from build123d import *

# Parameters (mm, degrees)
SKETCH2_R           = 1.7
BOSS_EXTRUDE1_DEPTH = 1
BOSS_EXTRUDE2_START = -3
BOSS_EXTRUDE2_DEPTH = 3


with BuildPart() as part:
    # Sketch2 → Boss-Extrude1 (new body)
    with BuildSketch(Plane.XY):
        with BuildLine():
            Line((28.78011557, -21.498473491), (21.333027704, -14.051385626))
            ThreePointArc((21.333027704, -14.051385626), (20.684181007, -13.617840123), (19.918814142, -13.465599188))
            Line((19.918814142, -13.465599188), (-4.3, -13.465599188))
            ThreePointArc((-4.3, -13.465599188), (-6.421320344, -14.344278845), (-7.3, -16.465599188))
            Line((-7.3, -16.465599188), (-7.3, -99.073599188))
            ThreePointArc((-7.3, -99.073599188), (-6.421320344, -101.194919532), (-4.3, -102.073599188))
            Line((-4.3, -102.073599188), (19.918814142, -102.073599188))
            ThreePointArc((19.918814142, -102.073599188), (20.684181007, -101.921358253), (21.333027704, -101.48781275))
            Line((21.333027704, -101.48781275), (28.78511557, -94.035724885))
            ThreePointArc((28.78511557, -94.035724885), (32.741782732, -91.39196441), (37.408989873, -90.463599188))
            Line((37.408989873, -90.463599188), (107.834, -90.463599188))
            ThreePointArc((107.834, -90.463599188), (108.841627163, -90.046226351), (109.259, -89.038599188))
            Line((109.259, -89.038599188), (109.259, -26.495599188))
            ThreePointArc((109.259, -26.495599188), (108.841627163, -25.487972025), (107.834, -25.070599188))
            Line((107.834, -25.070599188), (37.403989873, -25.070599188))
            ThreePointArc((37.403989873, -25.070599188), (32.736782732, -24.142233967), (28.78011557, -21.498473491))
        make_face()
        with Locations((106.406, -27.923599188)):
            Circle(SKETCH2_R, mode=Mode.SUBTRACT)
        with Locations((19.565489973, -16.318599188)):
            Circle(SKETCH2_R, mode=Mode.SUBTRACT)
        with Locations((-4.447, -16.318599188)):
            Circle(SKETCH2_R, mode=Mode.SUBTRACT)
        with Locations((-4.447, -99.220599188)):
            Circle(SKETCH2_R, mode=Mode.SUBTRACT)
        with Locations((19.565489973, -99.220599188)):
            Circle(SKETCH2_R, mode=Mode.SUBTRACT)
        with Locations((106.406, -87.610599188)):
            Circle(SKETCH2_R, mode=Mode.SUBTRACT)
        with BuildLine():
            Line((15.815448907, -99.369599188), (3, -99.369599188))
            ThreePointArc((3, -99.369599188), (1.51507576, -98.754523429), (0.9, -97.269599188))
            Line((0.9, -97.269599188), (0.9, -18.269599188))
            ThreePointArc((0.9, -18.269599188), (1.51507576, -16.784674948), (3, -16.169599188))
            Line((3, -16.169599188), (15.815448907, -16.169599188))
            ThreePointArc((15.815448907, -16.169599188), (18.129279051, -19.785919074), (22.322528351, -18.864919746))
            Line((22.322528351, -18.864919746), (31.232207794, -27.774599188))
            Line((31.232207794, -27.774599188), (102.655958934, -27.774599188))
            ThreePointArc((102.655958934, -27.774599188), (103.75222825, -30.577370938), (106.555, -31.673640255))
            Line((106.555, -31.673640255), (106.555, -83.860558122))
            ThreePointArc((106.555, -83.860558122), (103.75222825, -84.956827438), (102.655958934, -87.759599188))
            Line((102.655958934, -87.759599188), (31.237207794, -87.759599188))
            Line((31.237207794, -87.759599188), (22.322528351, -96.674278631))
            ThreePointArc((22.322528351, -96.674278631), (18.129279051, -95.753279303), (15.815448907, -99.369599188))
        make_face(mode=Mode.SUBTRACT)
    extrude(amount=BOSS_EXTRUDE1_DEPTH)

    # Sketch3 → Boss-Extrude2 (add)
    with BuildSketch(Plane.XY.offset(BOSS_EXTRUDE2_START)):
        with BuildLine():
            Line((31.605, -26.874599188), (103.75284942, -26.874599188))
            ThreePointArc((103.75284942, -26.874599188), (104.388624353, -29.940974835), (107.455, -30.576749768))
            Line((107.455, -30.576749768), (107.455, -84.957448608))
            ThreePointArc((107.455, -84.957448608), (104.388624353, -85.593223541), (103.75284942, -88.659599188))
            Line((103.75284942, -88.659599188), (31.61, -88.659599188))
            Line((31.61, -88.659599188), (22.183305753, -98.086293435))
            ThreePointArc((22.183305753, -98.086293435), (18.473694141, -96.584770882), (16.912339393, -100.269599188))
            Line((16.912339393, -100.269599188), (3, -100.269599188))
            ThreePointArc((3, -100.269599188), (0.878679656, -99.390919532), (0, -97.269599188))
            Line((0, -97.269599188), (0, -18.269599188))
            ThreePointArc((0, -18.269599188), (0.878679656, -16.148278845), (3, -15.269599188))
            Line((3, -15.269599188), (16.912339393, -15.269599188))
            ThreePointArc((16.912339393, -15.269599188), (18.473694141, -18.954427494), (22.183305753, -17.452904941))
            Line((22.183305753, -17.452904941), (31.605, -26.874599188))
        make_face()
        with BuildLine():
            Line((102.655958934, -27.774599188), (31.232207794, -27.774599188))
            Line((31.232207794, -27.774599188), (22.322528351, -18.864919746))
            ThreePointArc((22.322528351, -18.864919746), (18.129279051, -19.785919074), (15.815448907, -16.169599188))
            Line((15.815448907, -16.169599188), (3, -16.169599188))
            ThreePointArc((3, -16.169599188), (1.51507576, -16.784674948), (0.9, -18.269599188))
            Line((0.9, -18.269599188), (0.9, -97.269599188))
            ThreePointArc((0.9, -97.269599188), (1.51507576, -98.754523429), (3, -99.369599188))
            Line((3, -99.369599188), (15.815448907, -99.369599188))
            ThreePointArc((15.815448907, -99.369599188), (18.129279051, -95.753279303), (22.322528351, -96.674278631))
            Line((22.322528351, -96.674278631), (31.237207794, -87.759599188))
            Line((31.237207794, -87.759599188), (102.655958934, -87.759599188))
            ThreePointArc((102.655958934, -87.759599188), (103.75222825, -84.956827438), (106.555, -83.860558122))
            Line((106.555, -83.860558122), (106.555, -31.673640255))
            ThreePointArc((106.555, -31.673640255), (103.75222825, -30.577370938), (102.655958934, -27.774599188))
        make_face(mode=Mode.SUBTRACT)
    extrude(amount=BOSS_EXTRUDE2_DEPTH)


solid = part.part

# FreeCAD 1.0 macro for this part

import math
import FreeCAD as App
import Part
import Sketcher
from FreeCAD import Vector
Q = App.Units.Quantity

doc = App.newDocument("Part")
params = doc.addObject("Spreadsheet::Sheet", "Params")
for row, (alias, value) in enumerate([
    ("sketch1_radius", "2 mm"),
    ("sketch1_radius2", "3 mm"),
    ("sketch1_diameter", "3.4 mm"),
    ("sketch1_radius3", "2.1 mm"),
    ("sketch1_height", "79 mm"),
    ("pad1_length", "1 mm"),
    ("sketch2_radius", "3 mm"),
    ("sketch2_radius2", "2.1 mm"),
    ("sketch2_height", "79 mm"),
    ("pad2_length", "3 mm"),
], start=1):
    params.set(f"A{row}", alias)
    params.set(f"B{row}", "=" + value)
    params.setAlias(f"B{row}", alias)

body = doc.addObject("PartDesign::Body", "Body")

# Sketch on XY plane
sketch1 = body.newObject("Sketcher::SketchObject", "Sketch")
sketch1.AttachmentSupport = (doc.getObject("XY_Plane"), [""])
sketch1.MapMode = "FlatFace"
sketch1.addGeometry([
    Part.LineSegment(Vector(28.8, -21.5, 0), Vector(21.3, -14.1, 0)),  # 0
    Part.ArcOfCircle(Part.Circle(Vector(19.9, -15.5, 0), Vector(0, 0, 1), 2), math.radians(45), math.radians(90)),  # 1
    Part.LineSegment(Vector(19.9, -13.5, 0), Vector(-4.3, -13.5, 0)),  # 2
    Part.ArcOfCircle(Part.Circle(Vector(-4.3, -16.5, 0), Vector(0, 0, 1), 3), math.radians(90), math.radians(180)),  # 3
    Part.LineSegment(Vector(-7.3, -16.5, 0), Vector(-7.3, -99.1, 0)),  # 4
    Part.ArcOfCircle(Part.Circle(Vector(-4.3, -99.1, 0), Vector(0, 0, 1), 3), math.radians(180), math.radians(270)),  # 5
    Part.LineSegment(Vector(-4.3, -102.1, 0), Vector(19.9, -102.1, 0)),  # 6
    Part.ArcOfCircle(Part.Circle(Vector(19.9, -100.1, 0), Vector(0, 0, 1), 2), math.radians(-90), math.radians(-45)),  # 7
    Part.LineSegment(Vector(21.3, -101.5, 0), Vector(28.8, -94, 0)),  # 8
    Part.ArcOfCircle(Part.Circle(Vector(37.4, -102.7, 0), Vector(0, 0, 1), 12.2), math.radians(90), math.radians(135)),  # 9
    Part.LineSegment(Vector(37.4, -90.5, 0), Vector(107.8, -90.5, 0)),  # 10
    Part.ArcOfCircle(Part.Circle(Vector(107.8, -89, 0), Vector(0, 0, 1), 1.4), math.radians(-90), math.radians(0)),  # 11
    Part.LineSegment(Vector(109.3, -89, 0), Vector(109.3, -26.5, 0)),  # 12
    Part.ArcOfCircle(Part.Circle(Vector(107.8, -26.5, 0), Vector(0, 0, 1), 1.4), math.radians(0), math.radians(90)),  # 13
    Part.LineSegment(Vector(107.8, -25.1, 0), Vector(37.4, -25.1, 0)),  # 14
    Part.ArcOfCircle(Part.Circle(Vector(37.4, -12.9, 0), Vector(0, 0, 1), 12.2), math.radians(-135), math.radians(-90)),  # 15
    Part.Circle(Vector(-4.4, -99.2, 0), Vector(0, 0, 1), 1.7),  # 16
    Part.Circle(Vector(19.6, -99.2, 0), Vector(0, 0, 1), 1.7),  # 17
    Part.Circle(Vector(106.4, -87.6, 0), Vector(0, 0, 1), 1.7),  # 18
    Part.Circle(Vector(-4.4, -16.3, 0), Vector(0, 0, 1), 1.7),  # 19
    Part.Circle(Vector(19.6, -16.3, 0), Vector(0, 0, 1), 1.7),  # 20
    Part.ArcOfCircle(Part.Circle(Vector(19.6, -99.2, 0), Vector(0, 0, 1), 3.8), math.radians(43), math.radians(182)),  # 21
    Part.LineSegment(Vector(15.8, -99.4, 0), Vector(3, -99.4, 0)),  # 22
    Part.ArcOfCircle(Part.Circle(Vector(3, -97.3, 0), Vector(0, 0, 1), 2.1), math.radians(180), math.radians(270)),  # 23
    Part.LineSegment(Vector(0.9, -97.3, 0), Vector(0.9, -18.3, 0)),  # 24
    Part.ArcOfCircle(Part.Circle(Vector(3, -18.3, 0), Vector(0, 0, 1), 2.1), math.radians(90), math.radians(180)),  # 25
    Part.LineSegment(Vector(3, -16.2, 0), Vector(15.8, -16.2, 0)),  # 26
    Part.ArcOfCircle(Part.Circle(Vector(19.6, -16.3, 0), Vector(0, 0, 1), 3.8), math.radians(178), math.radians(317)),  # 27
    Part.LineSegment(Vector(22.3, -18.9, 0), Vector(31.2, -27.8, 0)),  # 28
    Part.LineSegment(Vector(31.2, -27.8, 0), Vector(102.7, -27.8, 0)),  # 29
    Part.ArcOfCircle(Part.Circle(Vector(106.4, -27.9, 0), Vector(0, 0, 1), 3.8), math.radians(178), math.radians(272)),  # 30
    Part.LineSegment(Vector(106.6, -31.7, 0), Vector(106.6, -83.9, 0)),  # 31
    Part.ArcOfCircle(Part.Circle(Vector(106.4, -87.6, 0), Vector(0, 0, 1), 3.8), math.radians(88), math.radians(182)),  # 32
    Part.LineSegment(Vector(102.7, -87.8, 0), Vector(31.2, -87.8, 0)),  # 33
    Part.LineSegment(Vector(31.2, -87.8, 0), Vector(22.3, -96.7, 0)),  # 34
    Part.Circle(Vector(106.4, -27.9, 0), Vector(0, 0, 1), 1.7),  # 35
], False)
sketch1.addConstraint([
    Sketcher.Constraint("Tangent", 0, 2, 1, 1),
    Sketcher.Constraint("Tangent", 1, 2, 2, 1),
    Sketcher.Constraint("Tangent", 2, 2, 3, 1),
    Sketcher.Constraint("Tangent", 3, 2, 4, 1),
    Sketcher.Constraint("Tangent", 4, 2, 5, 1),
    Sketcher.Constraint("Tangent", 5, 2, 6, 1),
    Sketcher.Constraint("Tangent", 6, 2, 7, 1),
    Sketcher.Constraint("Tangent", 7, 2, 8, 1),
    Sketcher.Constraint("Tangent", 8, 2, 9, 2),
    Sketcher.Constraint("Tangent", 9, 1, 10, 1),
    Sketcher.Constraint("Tangent", 10, 2, 11, 1),
    Sketcher.Constraint("Tangent", 11, 2, 12, 1),
    Sketcher.Constraint("Tangent", 12, 2, 13, 1),
    Sketcher.Constraint("Tangent", 13, 2, 14, 1),
    Sketcher.Constraint("Tangent", 14, 2, 15, 2),
    Sketcher.Constraint("Tangent", 15, 1, 0, 1),
    Sketcher.Constraint("Coincident", 21, 2, 22, 1),
    Sketcher.Constraint("Tangent", 22, 2, 23, 2),
    Sketcher.Constraint("Tangent", 23, 1, 24, 1),
    Sketcher.Constraint("Tangent", 24, 2, 25, 2),
    Sketcher.Constraint("Tangent", 25, 1, 26, 1),
    Sketcher.Constraint("Coincident", 26, 2, 27, 1),
    Sketcher.Constraint("Coincident", 27, 2, 28, 1),
    Sketcher.Constraint("Coincident", 28, 2, 29, 1),
    Sketcher.Constraint("Coincident", 29, 2, 30, 1),
    Sketcher.Constraint("Coincident", 30, 2, 31, 1),
    Sketcher.Constraint("Coincident", 31, 2, 32, 1),
    Sketcher.Constraint("Coincident", 32, 2, 33, 1),
    Sketcher.Constraint("Coincident", 33, 2, 34, 1),
    Sketcher.Constraint("Coincident", 34, 2, 21, 1),
    Sketcher.Constraint("Horizontal", 2),
    Sketcher.Constraint("Vertical", 4),
    Sketcher.Constraint("Horizontal", 6),
    Sketcher.Constraint("Horizontal", 10),
    Sketcher.Constraint("Vertical", 12),
    Sketcher.Constraint("Horizontal", 14),
    Sketcher.Constraint("Horizontal", 22),
    Sketcher.Constraint("Vertical", 24),
    Sketcher.Constraint("Horizontal", 26),
    Sketcher.Constraint("Horizontal", 29),
    Sketcher.Constraint("Vertical", 31),
    Sketcher.Constraint("Horizontal", 33),
    Sketcher.Constraint("Coincident", 21, 3, 17, 3),
    Sketcher.Constraint("Coincident", 27, 3, 20, 3),
    Sketcher.Constraint("Coincident", 32, 3, 18, 3),
    Sketcher.Constraint("Coincident", 35, 3, 30, 3),
    Sketcher.Constraint("Equal", 3, 5),
    Sketcher.Constraint("Equal", 1, 7),
    Sketcher.Constraint("Equal", 11, 13),
    Sketcher.Constraint("Equal", 9, 15),
    Sketcher.Constraint("Equal", 16, 17),
    Sketcher.Constraint("Equal", 17, 18),
    Sketcher.Constraint("Equal", 18, 19),
    Sketcher.Constraint("Equal", 19, 20),
    Sketcher.Constraint("Equal", 23, 25),
    Sketcher.Constraint("Equal", 21, 27),
    Sketcher.Constraint("Equal", 27, 30),
    Sketcher.Constraint("Equal", 30, 32),
    Sketcher.Constraint("Equal", 20, 35),
    Sketcher.Constraint("Perpendicular", 0, 8),
    Sketcher.Constraint("Perpendicular", 8, 28),
    Sketcher.Constraint("Perpendicular", 28, 34),
    Sketcher.Constraint("Horizontal", 16, 3, 17, 3),
    Sketcher.Constraint("Horizontal", 19, 3, 20, 3),
    Sketcher.Constraint("Vertical", 1, 3, 7, 3),
    Sketcher.Constraint("Vertical", 16, 3, 19, 3),
    Sketcher.Constraint("Vertical", 17, 3, 20, 3),
    Sketcher.Constraint("Vertical", 18, 3, 30, 3),
    Sketcher.Constraint("Vertical", 0, 2, 7, 2),
    Sketcher.Constraint("Vertical", 21, 2, 26, 2),
    Sketcher.Constraint("Vertical", 29, 2, 32, 2),
    Sketcher.Constraint("Vertical", 27, 2, 34, 2),
    Sketcher.Constraint("Radius", 1, Q("2 mm")),
    Sketcher.Constraint("Radius", 3, Q("3 mm")),
    Sketcher.Constraint("Diameter", 16, Q("3.4 mm")),
    Sketcher.Constraint("Radius", 23, Q("2.1 mm")),
    Sketcher.Constraint("DistanceY", 24, 1, 24, 2, Q("79 mm")),
    Sketcher.Constraint("DistanceX", -1, 1, 23, 3, Q("3 mm")),
    Sketcher.Constraint("Radius", 9, Q("12.196 mm")),
    Sketcher.Constraint("Radius", 11, Q("1.425 mm")),
    Sketcher.Constraint("Radius", 21, Q("3.753 mm")),
    Sketcher.Constraint("DistanceX", 3, 3, -1, 1, Q("4.3 mm")),
    Sketcher.Constraint("DistanceY", 28, 2, 15, 3, Q("14.9 mm")),
    Sketcher.Constraint("DistanceY", 9, 3, 33, 2, Q("14.9 mm")),
    Sketcher.Constraint("DistanceY", 4, 2, 4, 1, Q("82.608 mm")),
    Sketcher.Constraint("DistanceY", 12, 1, 12, 2, Q("62.543 mm")),
    Sketcher.Constraint("DistanceY", 13, 3, 1, 3, Q("11.03 mm")),
    Sketcher.Constraint("DistanceY", 17, 3, 18, 3, Q("11.61 mm")),
    Sketcher.Constraint("DistanceY", 10, 2, 30, 3, Q("62.54 mm")),
    Sketcher.Constraint("DistanceX", -1, 1, 11, 3, Q("107.834 mm")),
    Sketcher.Constraint("DistanceX", 16, 3, -1, 1, Q("4.447 mm")),
    Sketcher.Constraint("DistanceX", -1, 1, 18, 3, Q("106.406 mm")),
    Sketcher.Constraint("DistanceX", -1, 1, 30, 2, Q("106.555 mm")),
    Sketcher.Constraint("DistanceY", 3, 3, 19, 3, Q("0.147 mm")),
    Sketcher.Constraint("DistanceX", 10, 1, 10, 2, Q("70.42501 mm")),
    Sketcher.Constraint("DistanceX", 22, 2, 22, 1, Q("12.815449 mm")),
    Sketcher.Constraint("DistanceX", 29, 1, 29, 2, Q("71.423751 mm")),
    Sketcher.Constraint("DistanceY", 1, 3, -1, 1, Q("15.465599 mm")),
])
sketch1.setExpression("Constraints[72]", "Params.sketch1_radius")
sketch1.setExpression("Constraints[73]", "Params.sketch1_radius2")
sketch1.setExpression("Constraints[74]", "Params.sketch1_diameter")
sketch1.setExpression("Constraints[75]", "Params.sketch1_radius3")
sketch1.setExpression("Constraints[76]", "Params.sketch1_height")
pad1 = body.newObject("PartDesign::Pad", "Pad")
pad1.Profile = sketch1
pad1.setExpression("Length", "Params.pad1_length")

# Sketch on XY plane
sketch2 = body.newObject("Sketcher::SketchObject", "Sketch001")
sketch2.AttachmentSupport = (doc.getObject("XY_Plane"), [""])
sketch2.MapMode = "FlatFace"
sketch2.AttachmentOffset = App.Placement(Vector(0, 0, -3), App.Rotation())
sketch2.addGeometry([
    Part.LineSegment(Vector(103.8, -26.9, 0), Vector(31.6, -26.9, 0)),  # 0
    Part.LineSegment(Vector(31.6, -26.9, 0), Vector(22.2, -17.5, 0)),  # 1
    Part.ArcOfCircle(Part.Circle(Vector(19.6, -16.3, 0), Vector(0, 0, 1), 2.9), math.radians(158), math.radians(337)),  # 2
    Part.LineSegment(Vector(16.9, -15.3, 0), Vector(3, -15.3, 0)),  # 3
    Part.ArcOfCircle(Part.Circle(Vector(3, -18.3, 0), Vector(0, 0, 1), 3), math.radians(90), math.radians(180)),  # 4
    Part.LineSegment(Vector(0, -18.3, 0), Vector(0, -97.3, 0)),  # 5
    Part.ArcOfCircle(Part.Circle(Vector(3, -97.3, 0), Vector(0, 0, 1), 3), math.radians(180), math.radians(270)),  # 6
    Part.LineSegment(Vector(3, -100.3, 0), Vector(16.9, -100.3, 0)),  # 7
    Part.ArcOfCircle(Part.Circle(Vector(19.6, -99.2, 0), Vector(0, 0, 1), 2.9), math.radians(23), math.radians(202)),  # 8
    Part.LineSegment(Vector(22.2, -98.1, 0), Vector(31.6, -88.7, 0)),  # 9
    Part.LineSegment(Vector(31.6, -88.7, 0), Vector(103.8, -88.7, 0)),  # 10
    Part.ArcOfCircle(Part.Circle(Vector(106.4, -87.6, 0), Vector(0, 0, 1), 2.9), math.radians(68), math.radians(202)),  # 11
    Part.LineSegment(Vector(107.5, -85, 0), Vector(107.5, -30.6, 0)),  # 12
    Part.ArcOfCircle(Part.Circle(Vector(106.4, -27.9, 0), Vector(0, 0, 1), 2.9), math.radians(158), math.radians(292)),  # 13
    Part.ArcOfCircle(Part.Circle(Vector(106.4, -27.9, 0), Vector(0, 0, 1), 3.8), math.radians(178), math.radians(272)),  # 14
    Part.LineSegment(Vector(106.6, -31.7, 0), Vector(106.6, -83.9, 0)),  # 15
    Part.ArcOfCircle(Part.Circle(Vector(106.4, -87.6, 0), Vector(0, 0, 1), 3.8), math.radians(88), math.radians(182)),  # 16
    Part.LineSegment(Vector(102.7, -87.8, 0), Vector(31.2, -87.8, 0)),  # 17
    Part.LineSegment(Vector(31.2, -87.8, 0), Vector(22.3, -96.7, 0)),  # 18
    Part.ArcOfCircle(Part.Circle(Vector(19.6, -99.2, 0), Vector(0, 0, 1), 3.8), math.radians(43), math.radians(182)),  # 19
    Part.LineSegment(Vector(15.8, -99.4, 0), Vector(3, -99.4, 0)),  # 20
    Part.ArcOfCircle(Part.Circle(Vector(3, -97.3, 0), Vector(0, 0, 1), 2.1), math.radians(180), math.radians(270)),  # 21
    Part.LineSegment(Vector(0.9, -97.3, 0), Vector(0.9, -18.3, 0)),  # 22
    Part.ArcOfCircle(Part.Circle(Vector(3, -18.3, 0), Vector(0, 0, 1), 2.1), math.radians(90), math.radians(180)),  # 23
    Part.LineSegment(Vector(3, -16.2, 0), Vector(15.8, -16.2, 0)),  # 24
    Part.ArcOfCircle(Part.Circle(Vector(19.6, -16.3, 0), Vector(0, 0, 1), 3.8), math.radians(178), math.radians(317)),  # 25
    Part.LineSegment(Vector(22.3, -18.9, 0), Vector(31.2, -27.8, 0)),  # 26
    Part.LineSegment(Vector(31.2, -27.8, 0), Vector(102.7, -27.8, 0)),  # 27
], False)
sketch2.addConstraint([
    Sketcher.Constraint("Coincident", 0, 2, 1, 1),
    Sketcher.Constraint("Coincident", 1, 2, 2, 2),
    Sketcher.Constraint("Coincident", 2, 1, 3, 1),
    Sketcher.Constraint("Tangent", 3, 2, 4, 1),
    Sketcher.Constraint("Tangent", 4, 2, 5, 1),
    Sketcher.Constraint("Tangent", 5, 2, 6, 1),
    Sketcher.Constraint("Tangent", 6, 2, 7, 1),
    Sketcher.Constraint("Coincident", 7, 2, 8, 2),
    Sketcher.Constraint("Coincident", 8, 1, 9, 1),
    Sketcher.Constraint("Coincident", 9, 2, 10, 1),
    Sketcher.Constraint("Coincident", 10, 2, 11, 2),
    Sketcher.Constraint("Coincident", 11, 1, 12, 1),
    Sketcher.Constraint("Coincident", 12, 2, 13, 2),
    Sketcher.Constraint("Coincident", 13, 1, 0, 1),
    Sketcher.Constraint("Coincident", 14, 2, 15, 1),
    Sketcher.Constraint("Coincident", 15, 2, 16, 1),
    Sketcher.Constraint("Coincident", 16, 2, 17, 1),
    Sketcher.Constraint("Coincident", 17, 2, 18, 1),
    Sketcher.Constraint("Coincident", 18, 2, 19, 1),
    Sketcher.Constraint("Coincident", 19, 2, 20, 1),
    Sketcher.Constraint("Tangent", 20, 2, 21, 2),
    Sketcher.Constraint("Tangent", 21, 1, 22, 1),
    Sketcher.Constraint("Tangent", 22, 2, 23, 2),
    Sketcher.Constraint("Tangent", 23, 1, 24, 1),
    Sketcher.Constraint("Coincident", 24, 2, 25, 1),
    Sketcher.Constraint("Coincident", 25, 2, 26, 1),
    Sketcher.Constraint("Coincident", 26, 2, 27, 1),
    Sketcher.Constraint("Coincident", 27, 2, 14, 1),
    Sketcher.Constraint("Horizontal", 0),
    Sketcher.Constraint("Horizontal", 3),
    Sketcher.Constraint("Vertical", 5),
    Sketcher.Constraint("Horizontal", 7),
    Sketcher.Constraint("Horizontal", 10),
    Sketcher.Constraint("Vertical", 12),
    Sketcher.Constraint("Vertical", 15),
    Sketcher.Constraint("Horizontal", 17),
    Sketcher.Constraint("Horizontal", 20),
    Sketcher.Constraint("Vertical", 22),
    Sketcher.Constraint("Horizontal", 24),
    Sketcher.Constraint("Horizontal", 27),
    Sketcher.Constraint("Coincident", 14, 3, 13, 3),
    Sketcher.Constraint("Coincident", 16, 3, 11, 3),
    Sketcher.Constraint("Coincident", 19, 3, 8, 3),
    Sketcher.Constraint("Coincident", 21, 3, 6, 3),
    Sketcher.Constraint("Coincident", 23, 3, 4, 3),
    Sketcher.Constraint("Coincident", 25, 3, 2, 3),
    Sketcher.Constraint("Equal", 4, 6),
    Sketcher.Constraint("Equal", 2, 8),
    Sketcher.Constraint("Equal", 8, 11),
    Sketcher.Constraint("Equal", 11, 13),
    Sketcher.Constraint("Equal", 14, 16),
    Sketcher.Constraint("Equal", 16, 19),
    Sketcher.Constraint("Equal", 19, 25),
    Sketcher.Constraint("PointOnObject", 4, 2, -2),
    Sketcher.Constraint("Perpendicular", 1, 9),
    Sketcher.Constraint("Parallel", 9, 18),
    Sketcher.Constraint("Perpendicular", 18, 26),
    Sketcher.Constraint("Vertical", 2, 3, 8, 3),
    Sketcher.Constraint("Vertical", 11, 3, 13, 3),
    Sketcher.Constraint("Vertical", 2, 1, 7, 2),
    Sketcher.Constraint("Vertical", 1, 2, 8, 1),
    Sketcher.Constraint("Vertical", 10, 2, 13, 1),
    Sketcher.Constraint("Vertical", 18, 2, 25, 2),
    Sketcher.Constraint("Vertical", 16, 2, 27, 2),
    Sketcher.Constraint("Radius", 4, Q("3 mm")),
    Sketcher.Constraint("Radius", 21, Q("2.1 mm")),
    Sketcher.Constraint("DistanceY", 5, 2, 5, 1, Q("79 mm")),
    Sketcher.Constraint("Angle", 1, Q("135 deg")),
    Sketcher.Constraint("Radius", 2, Q("2.853 mm")),
    Sketcher.Constraint("Radius", 14, Q("3.753 mm")),
    Sketcher.Constraint("DistanceX", 14, 2, 12, 2, Q("0.9 mm")),
    Sketcher.Constraint("DistanceY", 10, 2, 16, 2, Q("0.9 mm")),
    Sketcher.Constraint("DistanceX", -1, 1, 9, 2, Q("31.61 mm")),
    Sketcher.Constraint("DistanceY", 8, 3, 11, 3, Q("11.61 mm")),
    Sketcher.Constraint("DistanceY", 7, 2, 9, 2, Q("11.61 mm")),
    Sketcher.Constraint("DistanceY", 12, 1, 12, 2, Q("54.380699 mm")),
    Sketcher.Constraint("DistanceX", -1, 1, 11, 3, Q("106.406 mm")),
    Sketcher.Constraint("DistanceX", -1, 1, 0, 2, Q("31.605 mm")),
    Sketcher.Constraint("DistanceX", -1, 1, 11, 1, Q("107.455 mm")),
    Sketcher.Constraint("DistanceX", 3, 2, 3, 1, Q("13.912339 mm")),
    Sketcher.Constraint("DistanceX", 17, 2, 17, 1, Q("71.418751 mm")),
    Sketcher.Constraint("DistanceY", 2, 3, -1, 1, Q("16.318599 mm")),
])
sketch2.setExpression("Constraints[64]", "Params.sketch2_radius")
sketch2.setExpression("Constraints[65]", "Params.sketch2_radius2")
sketch2.setExpression("Constraints[66]", "Params.sketch2_height")
pad2 = body.newObject("PartDesign::Pad", "Pad001")
pad2.Profile = sketch2
pad2.setExpression("Length", "Params.pad2_length")

doc.recompute()
